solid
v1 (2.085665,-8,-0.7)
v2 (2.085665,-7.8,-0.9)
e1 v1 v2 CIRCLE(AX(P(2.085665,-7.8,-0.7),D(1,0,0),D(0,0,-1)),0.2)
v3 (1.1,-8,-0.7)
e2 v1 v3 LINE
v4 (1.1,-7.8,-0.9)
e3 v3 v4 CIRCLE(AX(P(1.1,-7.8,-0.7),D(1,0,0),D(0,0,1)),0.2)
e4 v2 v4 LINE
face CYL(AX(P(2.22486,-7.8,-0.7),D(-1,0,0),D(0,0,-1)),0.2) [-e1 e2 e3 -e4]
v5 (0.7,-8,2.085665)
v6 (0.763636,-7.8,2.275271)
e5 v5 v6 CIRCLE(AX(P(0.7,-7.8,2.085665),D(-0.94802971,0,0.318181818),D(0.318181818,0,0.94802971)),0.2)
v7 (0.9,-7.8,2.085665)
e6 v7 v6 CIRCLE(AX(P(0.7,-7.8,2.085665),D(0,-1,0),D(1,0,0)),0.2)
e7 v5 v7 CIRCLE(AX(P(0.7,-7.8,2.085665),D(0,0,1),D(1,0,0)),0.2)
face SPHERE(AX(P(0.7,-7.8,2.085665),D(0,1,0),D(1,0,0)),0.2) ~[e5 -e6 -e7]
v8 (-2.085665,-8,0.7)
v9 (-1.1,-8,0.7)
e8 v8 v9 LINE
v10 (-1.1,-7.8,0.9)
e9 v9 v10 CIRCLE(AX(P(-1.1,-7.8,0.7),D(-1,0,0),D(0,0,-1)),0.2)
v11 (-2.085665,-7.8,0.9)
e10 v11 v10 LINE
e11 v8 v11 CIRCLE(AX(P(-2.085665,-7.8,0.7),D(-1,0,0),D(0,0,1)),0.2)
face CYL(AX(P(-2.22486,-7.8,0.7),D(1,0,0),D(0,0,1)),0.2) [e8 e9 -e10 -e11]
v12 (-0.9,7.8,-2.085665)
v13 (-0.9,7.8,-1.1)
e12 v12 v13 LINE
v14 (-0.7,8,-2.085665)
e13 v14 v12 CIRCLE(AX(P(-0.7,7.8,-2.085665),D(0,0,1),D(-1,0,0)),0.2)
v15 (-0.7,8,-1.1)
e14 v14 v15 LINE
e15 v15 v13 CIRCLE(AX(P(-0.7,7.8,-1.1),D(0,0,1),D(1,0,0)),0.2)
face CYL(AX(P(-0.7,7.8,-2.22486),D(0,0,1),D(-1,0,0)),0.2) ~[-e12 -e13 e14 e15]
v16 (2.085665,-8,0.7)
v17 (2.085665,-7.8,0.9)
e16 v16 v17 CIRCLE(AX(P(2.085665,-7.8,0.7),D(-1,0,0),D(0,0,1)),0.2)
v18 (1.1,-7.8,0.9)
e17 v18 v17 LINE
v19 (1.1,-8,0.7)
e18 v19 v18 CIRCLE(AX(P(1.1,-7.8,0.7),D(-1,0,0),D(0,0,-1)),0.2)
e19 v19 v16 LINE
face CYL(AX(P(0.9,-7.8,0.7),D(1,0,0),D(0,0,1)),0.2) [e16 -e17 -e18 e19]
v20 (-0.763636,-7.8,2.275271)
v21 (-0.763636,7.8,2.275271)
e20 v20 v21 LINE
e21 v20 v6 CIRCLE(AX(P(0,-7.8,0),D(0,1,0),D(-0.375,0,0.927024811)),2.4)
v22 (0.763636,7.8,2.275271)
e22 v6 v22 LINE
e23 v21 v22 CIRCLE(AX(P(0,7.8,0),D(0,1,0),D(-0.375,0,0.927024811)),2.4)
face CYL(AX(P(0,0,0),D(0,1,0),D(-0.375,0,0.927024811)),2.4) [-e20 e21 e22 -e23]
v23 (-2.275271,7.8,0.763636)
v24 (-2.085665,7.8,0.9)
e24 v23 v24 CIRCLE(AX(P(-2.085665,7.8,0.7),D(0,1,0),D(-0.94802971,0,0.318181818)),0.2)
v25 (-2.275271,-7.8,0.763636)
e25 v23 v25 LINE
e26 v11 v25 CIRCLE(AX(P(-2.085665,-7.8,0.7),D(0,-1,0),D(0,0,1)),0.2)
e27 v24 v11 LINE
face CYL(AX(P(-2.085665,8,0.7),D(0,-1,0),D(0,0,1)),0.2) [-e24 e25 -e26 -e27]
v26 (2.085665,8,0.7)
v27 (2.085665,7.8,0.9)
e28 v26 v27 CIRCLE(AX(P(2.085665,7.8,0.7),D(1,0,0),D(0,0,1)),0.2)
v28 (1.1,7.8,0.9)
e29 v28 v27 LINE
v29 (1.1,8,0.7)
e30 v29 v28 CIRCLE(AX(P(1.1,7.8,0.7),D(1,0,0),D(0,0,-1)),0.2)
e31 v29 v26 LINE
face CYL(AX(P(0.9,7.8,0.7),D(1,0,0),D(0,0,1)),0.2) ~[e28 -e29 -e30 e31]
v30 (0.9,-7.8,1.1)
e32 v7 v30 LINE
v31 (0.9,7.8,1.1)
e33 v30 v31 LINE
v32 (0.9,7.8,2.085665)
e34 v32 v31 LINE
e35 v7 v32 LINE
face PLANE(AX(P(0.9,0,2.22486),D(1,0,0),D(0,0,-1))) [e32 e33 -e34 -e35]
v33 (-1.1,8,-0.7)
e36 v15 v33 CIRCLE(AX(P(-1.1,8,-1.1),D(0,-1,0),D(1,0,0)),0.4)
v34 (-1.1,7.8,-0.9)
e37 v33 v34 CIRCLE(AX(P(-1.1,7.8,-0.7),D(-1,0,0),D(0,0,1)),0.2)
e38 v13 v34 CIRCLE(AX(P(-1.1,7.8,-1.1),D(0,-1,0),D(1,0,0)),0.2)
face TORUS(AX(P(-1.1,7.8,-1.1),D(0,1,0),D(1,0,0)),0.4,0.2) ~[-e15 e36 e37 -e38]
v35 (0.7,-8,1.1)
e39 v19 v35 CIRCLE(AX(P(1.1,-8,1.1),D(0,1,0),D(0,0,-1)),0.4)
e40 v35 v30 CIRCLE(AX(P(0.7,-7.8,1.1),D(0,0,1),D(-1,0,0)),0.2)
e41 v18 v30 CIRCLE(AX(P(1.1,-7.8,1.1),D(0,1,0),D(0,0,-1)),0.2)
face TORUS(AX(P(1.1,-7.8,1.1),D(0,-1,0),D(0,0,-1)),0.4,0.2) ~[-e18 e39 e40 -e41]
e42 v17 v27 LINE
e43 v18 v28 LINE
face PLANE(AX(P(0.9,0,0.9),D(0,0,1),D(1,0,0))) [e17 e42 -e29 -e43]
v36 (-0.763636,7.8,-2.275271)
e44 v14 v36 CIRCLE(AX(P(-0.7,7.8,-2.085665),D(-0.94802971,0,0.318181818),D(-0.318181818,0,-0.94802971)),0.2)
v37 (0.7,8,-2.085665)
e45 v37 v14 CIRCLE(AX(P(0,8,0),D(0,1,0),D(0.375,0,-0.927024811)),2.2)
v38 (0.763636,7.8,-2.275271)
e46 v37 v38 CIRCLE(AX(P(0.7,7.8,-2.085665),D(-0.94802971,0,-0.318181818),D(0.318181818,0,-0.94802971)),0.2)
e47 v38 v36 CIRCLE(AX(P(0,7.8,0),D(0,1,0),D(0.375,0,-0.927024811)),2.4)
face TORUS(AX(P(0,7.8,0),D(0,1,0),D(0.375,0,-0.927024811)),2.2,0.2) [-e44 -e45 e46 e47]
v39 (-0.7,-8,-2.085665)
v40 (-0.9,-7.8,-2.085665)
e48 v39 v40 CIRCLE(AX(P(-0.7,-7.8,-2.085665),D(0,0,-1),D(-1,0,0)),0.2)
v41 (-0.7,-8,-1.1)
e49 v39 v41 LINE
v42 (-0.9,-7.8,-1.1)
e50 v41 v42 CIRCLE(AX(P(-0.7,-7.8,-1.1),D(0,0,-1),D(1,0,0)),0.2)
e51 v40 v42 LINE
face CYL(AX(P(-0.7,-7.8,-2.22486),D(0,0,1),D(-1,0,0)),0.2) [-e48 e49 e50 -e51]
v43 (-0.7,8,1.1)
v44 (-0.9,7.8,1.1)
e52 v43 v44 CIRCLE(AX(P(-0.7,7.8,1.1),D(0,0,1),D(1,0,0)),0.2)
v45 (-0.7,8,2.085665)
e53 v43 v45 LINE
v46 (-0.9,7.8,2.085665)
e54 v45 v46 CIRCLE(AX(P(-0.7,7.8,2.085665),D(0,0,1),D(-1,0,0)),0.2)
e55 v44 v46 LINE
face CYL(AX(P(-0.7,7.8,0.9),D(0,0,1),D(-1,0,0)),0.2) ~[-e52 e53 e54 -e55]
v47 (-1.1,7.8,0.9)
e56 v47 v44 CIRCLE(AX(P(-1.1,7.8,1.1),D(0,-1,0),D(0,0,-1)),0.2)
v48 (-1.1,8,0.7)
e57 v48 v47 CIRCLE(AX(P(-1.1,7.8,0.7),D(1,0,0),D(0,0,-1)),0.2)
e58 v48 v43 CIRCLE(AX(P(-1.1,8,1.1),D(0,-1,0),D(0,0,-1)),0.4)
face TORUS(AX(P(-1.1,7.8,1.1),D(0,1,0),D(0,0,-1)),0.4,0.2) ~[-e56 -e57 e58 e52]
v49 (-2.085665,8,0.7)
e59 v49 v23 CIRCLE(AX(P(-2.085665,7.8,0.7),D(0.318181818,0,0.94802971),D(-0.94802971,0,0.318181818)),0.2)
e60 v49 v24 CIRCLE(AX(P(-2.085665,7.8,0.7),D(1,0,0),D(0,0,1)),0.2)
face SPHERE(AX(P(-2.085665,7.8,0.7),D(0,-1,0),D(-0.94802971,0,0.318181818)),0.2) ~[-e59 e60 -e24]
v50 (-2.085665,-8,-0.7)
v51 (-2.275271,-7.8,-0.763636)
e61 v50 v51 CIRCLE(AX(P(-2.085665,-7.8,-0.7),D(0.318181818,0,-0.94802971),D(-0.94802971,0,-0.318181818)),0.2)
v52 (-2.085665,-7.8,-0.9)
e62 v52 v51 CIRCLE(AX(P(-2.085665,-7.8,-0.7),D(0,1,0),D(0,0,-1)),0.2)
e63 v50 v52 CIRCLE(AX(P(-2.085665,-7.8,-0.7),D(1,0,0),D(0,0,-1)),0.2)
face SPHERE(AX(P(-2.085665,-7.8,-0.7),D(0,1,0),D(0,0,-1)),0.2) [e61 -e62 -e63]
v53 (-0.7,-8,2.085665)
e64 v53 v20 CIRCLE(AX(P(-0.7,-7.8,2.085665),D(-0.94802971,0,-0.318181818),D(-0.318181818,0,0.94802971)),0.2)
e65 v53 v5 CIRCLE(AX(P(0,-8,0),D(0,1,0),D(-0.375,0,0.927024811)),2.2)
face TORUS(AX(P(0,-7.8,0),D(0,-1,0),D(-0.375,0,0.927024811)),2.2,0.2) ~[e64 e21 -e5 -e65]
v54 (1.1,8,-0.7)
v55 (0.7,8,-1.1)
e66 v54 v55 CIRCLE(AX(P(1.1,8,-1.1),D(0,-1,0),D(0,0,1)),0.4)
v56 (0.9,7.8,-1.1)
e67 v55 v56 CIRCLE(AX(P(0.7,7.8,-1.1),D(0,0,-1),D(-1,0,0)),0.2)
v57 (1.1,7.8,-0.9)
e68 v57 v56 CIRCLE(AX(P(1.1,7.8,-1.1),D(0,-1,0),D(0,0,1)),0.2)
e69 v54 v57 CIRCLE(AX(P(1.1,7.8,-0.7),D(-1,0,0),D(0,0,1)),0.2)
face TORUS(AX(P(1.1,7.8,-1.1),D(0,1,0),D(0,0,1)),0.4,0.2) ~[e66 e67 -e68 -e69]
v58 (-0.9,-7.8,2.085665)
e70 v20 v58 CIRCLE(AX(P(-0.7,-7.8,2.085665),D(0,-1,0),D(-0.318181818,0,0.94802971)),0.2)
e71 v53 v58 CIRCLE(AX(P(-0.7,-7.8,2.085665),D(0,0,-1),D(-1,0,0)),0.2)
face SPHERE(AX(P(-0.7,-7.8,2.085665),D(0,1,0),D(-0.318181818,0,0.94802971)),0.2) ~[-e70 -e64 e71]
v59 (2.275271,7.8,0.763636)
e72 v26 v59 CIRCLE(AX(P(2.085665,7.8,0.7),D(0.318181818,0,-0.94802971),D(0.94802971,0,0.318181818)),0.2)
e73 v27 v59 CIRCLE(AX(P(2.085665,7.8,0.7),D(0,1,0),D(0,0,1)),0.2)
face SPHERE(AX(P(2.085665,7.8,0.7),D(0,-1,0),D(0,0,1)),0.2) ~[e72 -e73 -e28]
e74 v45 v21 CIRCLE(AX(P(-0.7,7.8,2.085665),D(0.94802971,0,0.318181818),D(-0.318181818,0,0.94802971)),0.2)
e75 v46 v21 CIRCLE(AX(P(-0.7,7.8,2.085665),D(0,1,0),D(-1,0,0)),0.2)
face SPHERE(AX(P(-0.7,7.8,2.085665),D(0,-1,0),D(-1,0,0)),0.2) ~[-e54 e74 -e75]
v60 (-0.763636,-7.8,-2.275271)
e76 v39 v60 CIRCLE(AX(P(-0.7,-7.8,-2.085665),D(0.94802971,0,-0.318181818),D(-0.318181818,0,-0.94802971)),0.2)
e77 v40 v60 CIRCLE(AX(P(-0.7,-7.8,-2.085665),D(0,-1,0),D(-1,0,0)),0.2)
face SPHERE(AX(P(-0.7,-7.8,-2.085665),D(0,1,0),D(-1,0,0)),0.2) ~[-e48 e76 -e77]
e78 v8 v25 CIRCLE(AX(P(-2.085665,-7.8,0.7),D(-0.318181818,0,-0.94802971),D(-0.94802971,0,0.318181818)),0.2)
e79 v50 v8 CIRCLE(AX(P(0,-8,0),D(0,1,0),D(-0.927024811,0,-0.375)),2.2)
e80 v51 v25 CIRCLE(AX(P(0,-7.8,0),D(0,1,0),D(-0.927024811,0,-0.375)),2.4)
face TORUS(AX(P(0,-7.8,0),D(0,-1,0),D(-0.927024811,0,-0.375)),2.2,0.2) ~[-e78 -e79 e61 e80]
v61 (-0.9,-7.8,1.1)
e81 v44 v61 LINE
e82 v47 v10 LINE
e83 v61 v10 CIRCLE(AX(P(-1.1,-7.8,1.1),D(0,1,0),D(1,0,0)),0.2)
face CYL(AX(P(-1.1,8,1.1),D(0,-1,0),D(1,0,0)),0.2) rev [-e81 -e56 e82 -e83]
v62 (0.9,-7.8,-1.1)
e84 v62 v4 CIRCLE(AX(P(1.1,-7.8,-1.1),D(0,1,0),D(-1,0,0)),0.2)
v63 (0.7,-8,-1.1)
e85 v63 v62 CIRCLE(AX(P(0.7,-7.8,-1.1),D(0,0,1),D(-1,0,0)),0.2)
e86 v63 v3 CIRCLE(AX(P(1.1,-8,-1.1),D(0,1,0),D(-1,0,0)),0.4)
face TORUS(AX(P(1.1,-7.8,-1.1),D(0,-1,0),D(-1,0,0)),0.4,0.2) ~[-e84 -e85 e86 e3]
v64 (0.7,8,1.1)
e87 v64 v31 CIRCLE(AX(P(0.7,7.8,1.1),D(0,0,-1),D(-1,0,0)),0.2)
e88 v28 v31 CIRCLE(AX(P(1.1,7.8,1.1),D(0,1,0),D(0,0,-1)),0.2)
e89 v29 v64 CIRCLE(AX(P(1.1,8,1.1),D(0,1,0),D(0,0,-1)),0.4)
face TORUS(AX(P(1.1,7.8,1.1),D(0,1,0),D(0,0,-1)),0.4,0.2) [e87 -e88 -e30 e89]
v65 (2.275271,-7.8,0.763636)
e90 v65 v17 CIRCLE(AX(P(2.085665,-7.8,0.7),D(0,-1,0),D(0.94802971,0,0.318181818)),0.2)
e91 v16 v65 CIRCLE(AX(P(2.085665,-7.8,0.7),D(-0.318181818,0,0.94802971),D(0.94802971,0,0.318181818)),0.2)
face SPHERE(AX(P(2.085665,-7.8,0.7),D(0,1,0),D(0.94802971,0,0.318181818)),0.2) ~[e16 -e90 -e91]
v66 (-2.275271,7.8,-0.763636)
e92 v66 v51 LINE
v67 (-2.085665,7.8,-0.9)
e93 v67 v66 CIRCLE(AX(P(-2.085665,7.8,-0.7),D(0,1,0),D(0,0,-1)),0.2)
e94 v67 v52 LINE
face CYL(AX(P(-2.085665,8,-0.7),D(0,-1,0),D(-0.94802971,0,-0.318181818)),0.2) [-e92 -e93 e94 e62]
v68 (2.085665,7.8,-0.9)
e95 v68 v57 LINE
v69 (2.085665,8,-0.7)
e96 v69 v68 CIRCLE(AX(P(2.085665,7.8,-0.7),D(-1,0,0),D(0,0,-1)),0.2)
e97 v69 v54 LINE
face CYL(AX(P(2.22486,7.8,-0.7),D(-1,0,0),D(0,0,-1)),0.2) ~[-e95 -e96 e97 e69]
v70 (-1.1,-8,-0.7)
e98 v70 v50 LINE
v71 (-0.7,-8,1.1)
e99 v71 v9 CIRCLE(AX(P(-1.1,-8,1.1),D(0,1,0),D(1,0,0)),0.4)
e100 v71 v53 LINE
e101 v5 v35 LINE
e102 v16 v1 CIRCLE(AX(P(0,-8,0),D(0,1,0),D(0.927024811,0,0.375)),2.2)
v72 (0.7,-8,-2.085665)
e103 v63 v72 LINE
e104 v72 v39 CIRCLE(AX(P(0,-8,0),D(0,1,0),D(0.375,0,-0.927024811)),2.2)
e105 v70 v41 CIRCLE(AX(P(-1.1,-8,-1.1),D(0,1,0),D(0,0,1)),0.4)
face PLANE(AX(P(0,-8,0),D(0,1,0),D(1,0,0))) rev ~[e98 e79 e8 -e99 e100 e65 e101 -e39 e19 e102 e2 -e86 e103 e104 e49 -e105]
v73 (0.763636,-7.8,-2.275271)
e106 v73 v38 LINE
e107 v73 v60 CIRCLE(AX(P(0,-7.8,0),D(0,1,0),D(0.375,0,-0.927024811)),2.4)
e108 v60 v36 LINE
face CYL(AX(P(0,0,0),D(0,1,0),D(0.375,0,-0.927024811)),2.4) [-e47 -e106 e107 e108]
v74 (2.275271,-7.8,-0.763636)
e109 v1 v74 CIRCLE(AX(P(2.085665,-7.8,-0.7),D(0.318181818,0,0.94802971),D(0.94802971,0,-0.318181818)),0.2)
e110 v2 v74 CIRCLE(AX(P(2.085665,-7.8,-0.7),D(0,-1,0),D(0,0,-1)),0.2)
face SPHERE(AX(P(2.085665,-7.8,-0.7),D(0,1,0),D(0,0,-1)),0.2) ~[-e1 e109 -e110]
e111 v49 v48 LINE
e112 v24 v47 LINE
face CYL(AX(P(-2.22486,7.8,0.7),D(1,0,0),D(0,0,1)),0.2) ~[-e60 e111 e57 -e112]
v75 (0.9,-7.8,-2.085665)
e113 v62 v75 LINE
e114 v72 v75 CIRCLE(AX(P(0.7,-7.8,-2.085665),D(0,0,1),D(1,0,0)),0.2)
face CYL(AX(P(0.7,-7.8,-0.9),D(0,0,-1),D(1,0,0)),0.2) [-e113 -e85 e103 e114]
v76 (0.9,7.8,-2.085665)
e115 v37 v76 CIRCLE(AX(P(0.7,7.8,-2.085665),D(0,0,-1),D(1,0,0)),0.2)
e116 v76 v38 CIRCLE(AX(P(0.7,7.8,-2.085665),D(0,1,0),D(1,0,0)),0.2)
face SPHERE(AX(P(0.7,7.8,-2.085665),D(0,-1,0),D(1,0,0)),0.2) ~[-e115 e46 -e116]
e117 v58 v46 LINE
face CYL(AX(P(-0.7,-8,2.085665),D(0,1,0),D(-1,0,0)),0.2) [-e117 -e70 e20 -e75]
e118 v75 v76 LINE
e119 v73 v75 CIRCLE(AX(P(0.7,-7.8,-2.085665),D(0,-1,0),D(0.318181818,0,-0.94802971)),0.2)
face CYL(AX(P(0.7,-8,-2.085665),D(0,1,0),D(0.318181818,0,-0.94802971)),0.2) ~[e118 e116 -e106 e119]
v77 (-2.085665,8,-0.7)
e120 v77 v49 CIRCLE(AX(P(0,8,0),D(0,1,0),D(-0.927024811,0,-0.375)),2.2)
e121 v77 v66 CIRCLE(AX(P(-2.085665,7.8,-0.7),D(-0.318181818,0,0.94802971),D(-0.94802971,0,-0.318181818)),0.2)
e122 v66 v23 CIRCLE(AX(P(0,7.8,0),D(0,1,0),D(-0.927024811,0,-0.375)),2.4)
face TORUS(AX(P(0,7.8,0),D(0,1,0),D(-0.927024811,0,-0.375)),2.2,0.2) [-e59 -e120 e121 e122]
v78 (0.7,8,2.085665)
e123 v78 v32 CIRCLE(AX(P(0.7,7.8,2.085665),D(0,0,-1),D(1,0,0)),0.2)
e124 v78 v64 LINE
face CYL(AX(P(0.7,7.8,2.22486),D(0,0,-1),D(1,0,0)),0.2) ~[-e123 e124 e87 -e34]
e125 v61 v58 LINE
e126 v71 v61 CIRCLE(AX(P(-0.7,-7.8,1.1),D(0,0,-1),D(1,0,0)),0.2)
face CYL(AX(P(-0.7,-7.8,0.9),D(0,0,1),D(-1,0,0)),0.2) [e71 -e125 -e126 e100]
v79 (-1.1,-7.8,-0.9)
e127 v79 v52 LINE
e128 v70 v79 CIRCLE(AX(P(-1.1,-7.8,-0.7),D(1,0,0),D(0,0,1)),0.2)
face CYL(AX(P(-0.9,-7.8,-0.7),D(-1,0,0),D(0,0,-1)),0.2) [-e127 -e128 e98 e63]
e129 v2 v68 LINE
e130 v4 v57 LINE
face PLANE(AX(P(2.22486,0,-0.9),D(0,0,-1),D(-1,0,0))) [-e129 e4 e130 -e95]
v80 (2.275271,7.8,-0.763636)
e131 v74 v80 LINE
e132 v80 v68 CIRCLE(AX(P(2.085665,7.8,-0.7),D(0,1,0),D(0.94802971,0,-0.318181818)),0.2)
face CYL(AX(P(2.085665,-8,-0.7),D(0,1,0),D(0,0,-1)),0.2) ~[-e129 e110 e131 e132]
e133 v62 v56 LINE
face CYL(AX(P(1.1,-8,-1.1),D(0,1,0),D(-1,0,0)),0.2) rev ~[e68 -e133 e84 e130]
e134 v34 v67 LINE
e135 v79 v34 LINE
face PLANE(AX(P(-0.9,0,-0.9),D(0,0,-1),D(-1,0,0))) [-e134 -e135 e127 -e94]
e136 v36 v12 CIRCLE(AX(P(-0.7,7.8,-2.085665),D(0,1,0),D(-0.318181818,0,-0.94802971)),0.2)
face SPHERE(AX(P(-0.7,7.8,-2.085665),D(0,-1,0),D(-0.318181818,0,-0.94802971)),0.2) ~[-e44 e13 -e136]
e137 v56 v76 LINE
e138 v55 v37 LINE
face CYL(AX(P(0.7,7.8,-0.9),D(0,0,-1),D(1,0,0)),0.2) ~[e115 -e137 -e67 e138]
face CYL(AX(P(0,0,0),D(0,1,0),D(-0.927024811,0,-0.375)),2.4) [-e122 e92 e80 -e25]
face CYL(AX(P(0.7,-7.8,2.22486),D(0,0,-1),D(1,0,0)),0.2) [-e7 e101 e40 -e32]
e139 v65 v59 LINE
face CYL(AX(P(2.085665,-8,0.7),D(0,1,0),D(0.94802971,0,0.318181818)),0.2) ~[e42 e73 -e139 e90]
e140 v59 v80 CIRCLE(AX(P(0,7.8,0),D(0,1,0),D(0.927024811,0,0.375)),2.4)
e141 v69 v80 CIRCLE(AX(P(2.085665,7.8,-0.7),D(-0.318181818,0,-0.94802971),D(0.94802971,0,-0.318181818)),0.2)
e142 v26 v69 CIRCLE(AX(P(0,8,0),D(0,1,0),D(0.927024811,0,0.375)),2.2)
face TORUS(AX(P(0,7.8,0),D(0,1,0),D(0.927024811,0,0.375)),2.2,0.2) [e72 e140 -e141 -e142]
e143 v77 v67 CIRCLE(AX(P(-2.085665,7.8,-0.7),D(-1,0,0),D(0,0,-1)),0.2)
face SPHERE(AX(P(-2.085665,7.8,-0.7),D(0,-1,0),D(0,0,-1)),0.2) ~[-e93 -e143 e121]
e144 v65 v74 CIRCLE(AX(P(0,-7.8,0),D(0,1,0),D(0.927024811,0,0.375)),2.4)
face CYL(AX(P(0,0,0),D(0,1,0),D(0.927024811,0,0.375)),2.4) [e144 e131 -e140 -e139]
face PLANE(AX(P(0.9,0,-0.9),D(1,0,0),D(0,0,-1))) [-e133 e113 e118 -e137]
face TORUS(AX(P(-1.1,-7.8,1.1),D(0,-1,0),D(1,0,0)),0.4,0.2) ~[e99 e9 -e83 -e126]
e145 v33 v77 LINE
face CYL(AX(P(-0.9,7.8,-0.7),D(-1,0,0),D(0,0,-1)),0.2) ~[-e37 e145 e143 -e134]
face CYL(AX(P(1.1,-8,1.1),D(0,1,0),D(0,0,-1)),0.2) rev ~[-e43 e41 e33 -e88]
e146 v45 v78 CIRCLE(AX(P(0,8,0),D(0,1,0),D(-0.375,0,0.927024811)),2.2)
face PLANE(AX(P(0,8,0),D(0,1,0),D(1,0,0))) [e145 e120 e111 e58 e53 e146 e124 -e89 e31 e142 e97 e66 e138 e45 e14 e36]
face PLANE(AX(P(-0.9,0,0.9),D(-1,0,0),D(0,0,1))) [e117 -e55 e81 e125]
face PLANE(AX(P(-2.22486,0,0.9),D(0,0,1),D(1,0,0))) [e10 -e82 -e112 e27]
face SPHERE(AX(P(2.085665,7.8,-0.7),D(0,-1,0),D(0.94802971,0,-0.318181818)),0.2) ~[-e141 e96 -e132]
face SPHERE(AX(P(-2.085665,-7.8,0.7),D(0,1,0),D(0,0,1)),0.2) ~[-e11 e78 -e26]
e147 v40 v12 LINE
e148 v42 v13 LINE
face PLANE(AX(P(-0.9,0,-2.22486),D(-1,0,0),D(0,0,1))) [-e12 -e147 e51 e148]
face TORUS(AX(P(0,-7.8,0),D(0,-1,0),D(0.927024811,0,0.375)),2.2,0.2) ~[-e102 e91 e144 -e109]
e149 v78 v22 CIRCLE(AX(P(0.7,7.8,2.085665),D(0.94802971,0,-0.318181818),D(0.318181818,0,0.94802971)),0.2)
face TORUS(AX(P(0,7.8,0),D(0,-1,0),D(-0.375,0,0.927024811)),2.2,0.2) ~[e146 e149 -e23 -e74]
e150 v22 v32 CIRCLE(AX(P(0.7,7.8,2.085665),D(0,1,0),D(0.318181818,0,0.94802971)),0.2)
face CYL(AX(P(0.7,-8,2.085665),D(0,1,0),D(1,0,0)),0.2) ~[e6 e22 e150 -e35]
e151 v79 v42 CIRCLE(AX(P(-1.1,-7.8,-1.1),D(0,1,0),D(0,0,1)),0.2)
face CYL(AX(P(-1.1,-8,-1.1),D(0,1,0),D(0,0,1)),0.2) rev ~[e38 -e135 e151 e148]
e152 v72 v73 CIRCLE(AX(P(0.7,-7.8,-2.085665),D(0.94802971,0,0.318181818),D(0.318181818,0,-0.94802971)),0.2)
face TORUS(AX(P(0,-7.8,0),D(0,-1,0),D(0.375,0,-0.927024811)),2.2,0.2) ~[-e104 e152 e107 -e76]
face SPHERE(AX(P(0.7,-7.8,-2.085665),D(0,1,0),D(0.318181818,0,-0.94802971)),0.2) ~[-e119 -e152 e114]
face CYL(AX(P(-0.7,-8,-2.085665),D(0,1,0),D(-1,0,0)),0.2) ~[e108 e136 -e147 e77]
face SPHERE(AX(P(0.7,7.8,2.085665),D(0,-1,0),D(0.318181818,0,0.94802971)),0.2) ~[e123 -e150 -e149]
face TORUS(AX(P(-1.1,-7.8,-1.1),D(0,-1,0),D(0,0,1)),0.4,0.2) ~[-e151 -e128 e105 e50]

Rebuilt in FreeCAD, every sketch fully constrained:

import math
import FreeCAD as App
import Part
import Sketcher

V = App.Vector
Q = App.Units.Quantity

doc = App.newDocument("Part")
body = doc.addObject("PartDesign::Body", "Body")

# Sketch on XZ plane
sketch1 = body.newObject("Sketcher::SketchObject", "Sketch")
sketch1.AttachmentSupport = (doc.getObject("XZ_Plane"), [""])
sketch1.MapMode = "FlatFace"
sketch1.addGeometry([
    Part.LineSegment(V(-0.9, 0.9, 0), V(-0.9, 2.2, 0)),  # 0
    Part.ArcOfCircle(Part.Circle(V(0, 0, 0), V(0, 0, 1), 2.4), math.radians(68), math.radians(112)),  # 1
    Part.LineSegment(V(0.9, 2.2, 0), V(0.9, 0.9, 0)),  # 2
    Part.LineSegment(V(0.9, 0.9, 0), V(2.2, 0.9, 0)),  # 3
    Part.ArcOfCircle(Part.Circle(V(0, 0, 0), V(0, 0, 1), 2.4), math.radians(-22), math.radians(22)),  # 4
    Part.LineSegment(V(2.2, -0.9, 0), V(0.9, -0.9, 0)),  # 5
    Part.LineSegment(V(0.9, -0.9, 0), V(0.9, -2.2, 0)),  # 6
    Part.ArcOfCircle(Part.Circle(V(0, 0, 0), V(0, 0, 1), 2.4), math.radians(-112), math.radians(-68)),  # 7
    Part.LineSegment(V(-0.9, -2.2, 0), V(-0.9, -0.9, 0)),  # 8
    Part.LineSegment(V(-0.9, -0.9, 0), V(-2.2, -0.9, 0)),  # 9
    Part.ArcOfCircle(Part.Circle(V(0, 0, 0), V(0, 0, 1), 2.4), math.radians(158), math.radians(202)),  # 10
    Part.LineSegment(V(-2.2, 0.9, 0), V(-0.9, 0.9, 0)),  # 11
], False)
sketch1.addConstraint([
    Sketcher.Constraint("Coincident", 0, 2, 1, 2),
    Sketcher.Constraint("Coincident", 1, 1, 2, 1),
    Sketcher.Constraint("Coincident", 2, 2, 3, 1),
    Sketcher.Constraint("Coincident", 3, 2, 4, 2),
    Sketcher.Constraint("Coincident", 4, 1, 5, 1),
    Sketcher.Constraint("Coincident", 5, 2, 6, 1),
    Sketcher.Constraint("Coincident", 6, 2, 7, 2),
    Sketcher.Constraint("Coincident", 7, 1, 8, 1),
    Sketcher.Constraint("Coincident", 8, 2, 9, 1),
    Sketcher.Constraint("Coincident", 9, 2, 10, 2),
    Sketcher.Constraint("Coincident", 10, 1, 11, 1),
    Sketcher.Constraint("Coincident", 11, 2, 0, 1),
    Sketcher.Constraint("Vertical", 0),
    Sketcher.Constraint("Vertical", 2),
    Sketcher.Constraint("Horizontal", 3),
    Sketcher.Constraint("Horizontal", 5),
    Sketcher.Constraint("Vertical", 6),
    Sketcher.Constraint("Vertical", 8),
    Sketcher.Constraint("Horizontal", 9),
    Sketcher.Constraint("Horizontal", 11),
    Sketcher.Constraint("Coincident", 1, 3, -1, 1),
    Sketcher.Constraint("Coincident", 4, 3, -1, 1),
    Sketcher.Constraint("Coincident", 7, 3, -1, 1),
    Sketcher.Constraint("Coincident", 10, 3, -1, 1),
    Sketcher.Constraint("Equal", 1, 4),
    Sketcher.Constraint("Equal", 4, 7),
    Sketcher.Constraint("Equal", 7, 10),
    Sketcher.Constraint("Symmetric", 2, 2, 8, 2, -1, 1),
    Sketcher.Constraint("Symmetric", 5, 2, 11, 2, -1, 1),
    Sketcher.Constraint("Symmetric", 5, 2, 8, 2, -2),
    Sketcher.Constraint("Equal", 11, 0),
    Sketcher.Constraint("Radius", 1, Q("2.4 mm")),
    Sketcher.Constraint("DistanceX", 0, 2, -1, 1, Q("0.9 mm")),
])
pad1 = body.newObject("PartDesign::Pad", "Pad")
pad1.Profile = sketch1
pad1.Length = 16
pad1.Midplane = True
doc.recompute()

fillet = body.newObject("PartDesign::Fillet", "Fillet")
fillet.Base = (pad1, ["Edge1"])
fillet.UseAllEdges = True
fillet.Radius = 0.2

doc.recompute()
